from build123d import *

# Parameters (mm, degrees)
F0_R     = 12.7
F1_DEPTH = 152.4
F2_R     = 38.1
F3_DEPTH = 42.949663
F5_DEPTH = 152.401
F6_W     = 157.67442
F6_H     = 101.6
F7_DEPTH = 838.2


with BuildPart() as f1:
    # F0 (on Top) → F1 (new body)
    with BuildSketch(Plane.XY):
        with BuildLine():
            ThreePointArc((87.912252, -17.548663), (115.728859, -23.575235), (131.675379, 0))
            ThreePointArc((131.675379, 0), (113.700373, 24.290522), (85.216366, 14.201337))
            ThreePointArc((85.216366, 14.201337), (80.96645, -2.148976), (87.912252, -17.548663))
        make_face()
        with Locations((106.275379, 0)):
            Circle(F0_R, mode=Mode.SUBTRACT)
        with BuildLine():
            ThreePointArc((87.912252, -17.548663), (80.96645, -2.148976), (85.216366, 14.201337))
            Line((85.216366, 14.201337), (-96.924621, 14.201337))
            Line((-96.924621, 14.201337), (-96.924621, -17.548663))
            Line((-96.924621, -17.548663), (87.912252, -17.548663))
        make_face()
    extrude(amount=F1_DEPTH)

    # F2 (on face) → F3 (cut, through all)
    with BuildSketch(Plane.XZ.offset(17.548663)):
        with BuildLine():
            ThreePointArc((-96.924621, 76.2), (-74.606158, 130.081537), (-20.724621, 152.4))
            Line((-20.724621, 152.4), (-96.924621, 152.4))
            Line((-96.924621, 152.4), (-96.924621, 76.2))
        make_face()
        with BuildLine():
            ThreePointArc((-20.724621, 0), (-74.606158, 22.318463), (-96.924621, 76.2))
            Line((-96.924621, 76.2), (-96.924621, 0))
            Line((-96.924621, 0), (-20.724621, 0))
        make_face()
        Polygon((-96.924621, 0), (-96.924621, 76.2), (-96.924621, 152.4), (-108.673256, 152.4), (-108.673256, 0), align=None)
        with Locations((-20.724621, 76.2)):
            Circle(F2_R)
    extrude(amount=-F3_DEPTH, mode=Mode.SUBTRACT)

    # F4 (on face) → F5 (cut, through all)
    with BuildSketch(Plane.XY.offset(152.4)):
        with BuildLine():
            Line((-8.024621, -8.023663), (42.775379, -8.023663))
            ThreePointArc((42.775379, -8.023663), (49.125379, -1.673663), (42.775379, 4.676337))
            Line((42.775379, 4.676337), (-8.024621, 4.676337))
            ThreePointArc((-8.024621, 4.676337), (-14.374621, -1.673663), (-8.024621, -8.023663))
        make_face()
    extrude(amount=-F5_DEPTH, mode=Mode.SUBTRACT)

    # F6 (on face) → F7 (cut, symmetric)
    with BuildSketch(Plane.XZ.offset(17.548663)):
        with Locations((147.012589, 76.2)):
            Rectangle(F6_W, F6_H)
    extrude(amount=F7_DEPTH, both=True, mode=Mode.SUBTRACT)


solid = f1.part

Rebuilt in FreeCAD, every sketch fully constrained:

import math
import FreeCAD as App
import Part
import Sketcher

V = App.Vector
Q = App.Units.Quantity

doc = App.newDocument("Part")
body = doc.addObject("PartDesign::Body", "Body")

sketch1 = body.newObject("Sketcher::SketchObject", "Sketch")
sketch1.AttachmentSupport = (doc.getObject("XY_Plane"), [""])
sketch1.MapMode = "FlatFace"
sketch1.addGeometry([
    Part.ArcOfCircle(Part.Circle(V(106, 0, 0), V(0, 0, 1), 25), math.radians(-136), math.radians(0)),
    Part.ArcOfCircle(Part.Circle(V(106, 0, 0), V(0, 0, 1), 25), math.radians(0), math.radians(146)),
    Part.LineSegment(V(85, 14, 0), V(-97, 14, 0)),
    Part.LineSegment(V(-97, 14, 0), V(-97, -18, 0)),
    Part.LineSegment(V(-97, -18, 0), V(88, -18, 0)),
    Part.Circle(V(106, 0, 0), V(0, 0, 1), 13),
], False)
sketch1.addConstraint([
    Sketcher.Constraint("Tangent", 0, 2, 1, 1),
    Sketcher.Constraint("Coincident", 1, 2, 2, 1),
    Sketcher.Constraint("Coincident", 2, 2, 3, 1),
    Sketcher.Constraint("Coincident", 3, 2, 4, 1),
    Sketcher.Constraint("Coincident", 4, 2, 0, 1),
    Sketcher.Constraint("Horizontal", 2),
    Sketcher.Constraint("Vertical", 3),
    Sketcher.Constraint("Horizontal", 4),
    Sketcher.Constraint("Coincident", 5, 3, 0, 3),
    Sketcher.Constraint("Equal", 0, 1),
    Sketcher.Constraint("PointOnObject", 0, 3, -1),
    Sketcher.Constraint("PointOnObject", 0, 2, -1),
    Sketcher.Constraint("Diameter", 5, Q("1 in")),
    Sketcher.Constraint("Radius", 0, Q("1 in")),
    Sketcher.Constraint("DistanceX", 2, 2, 0, 3, Q("8 in")),
    Sketcher.Constraint("DistanceY", 3, 2, 3, 1, Q("1.25 in")),
    Sketcher.Constraint("DistanceX", 2, 2, 2, 1, Q("182.140987 mm")),
    Sketcher.Constraint("DistanceX", -1, 1, 0, 3, Q("106.275379 mm")),
])
pad1 = body.newObject("PartDesign::Pad", "Pad")
pad1.Profile = sketch1
pad1.Length = Q("6 in")

sketch2 = body.newObject("Sketcher::SketchObject", "Sketch001")
sketch2.AttachmentSupport = (doc.getObject("XZ_Plane"), [""])
sketch2.MapMode = "FlatFace"
sketch2.AttachmentOffset = App.Placement(V(0, 0, 17.548663), App.Rotation())
sketch2.addGeometry([
    Part.ArcOfCircle(Part.Circle(V(-21, 76, 0), V(0, 0, 1), 76), math.radians(90), math.radians(180)),
    Part.LineSegment(V(-21, 152, 0), V(-109, 152, 0)),
    Part.LineSegment(V(-109, 152, 0), V(-109, 0, 0)),
    Part.LineSegment(V(-109, 0, 0), V(-21, 0, 0)),
    Part.ArcOfCircle(Part.Circle(V(-21, 76, 0), V(0, 0, 1), 76), math.radians(180), math.radians(270)),
    Part.Circle(V(-21, 76, 0), V(0, 0, 1), 38),
], False)
sketch2.addConstraint([
    Sketcher.Constraint("Tangent", 0, 1, 1, 1),
    Sketcher.Constraint("Coincident", 1, 2, 2, 1),
    Sketcher.Constraint("Coincident", 2, 2, 3, 1),
    Sketcher.Constraint("Tangent", 3, 2, 4, 2),
    Sketcher.Constraint("Tangent", 4, 1, 0, 2),
    Sketcher.Constraint("Horizontal", 1),
    Sketcher.Constraint("Vertical", 2),
    Sketcher.Constraint("Horizontal", 3),
    Sketcher.Constraint("Coincident", 5, 3, 0, 3),
    Sketcher.Constraint("Equal", 0, 4),
    Sketcher.Constraint("PointOnObject", 2, 2, -1),
    Sketcher.Constraint("Horizontal", 5, 3, 4, 1),
    Sketcher.Constraint("Diameter", 5, Q("3 in")),
    Sketcher.Constraint("Radius", 0, Q("3 in")),
    Sketcher.Constraint("DistanceX", 1, 2, 1, 1, Q("87.948635 mm")),
    Sketcher.Constraint("DistanceX", 0, 3, -1, 1, Q("20.724622 mm")),
])
pocket1 = body.newObject("PartDesign::Pocket", "Pocket")
pocket1.Profile = sketch2
pocket1.Type = "ThroughAll"

sketch3 = body.newObject("Sketcher::SketchObject", "Sketch002")
sketch3.AttachmentSupport = (doc.getObject("XY_Plane"), [""])
sketch3.MapMode = "FlatFace"
sketch3.AttachmentOffset = App.Placement(V(0, 0, 6 * 25.4), App.Rotation())
sketch3.addGeometry([
    Part.LineSegment(V(-8, -8, 0), V(43, -8, 0)),
    Part.ArcOfCircle(Part.Circle(V(43, -2, 0), V(0, 0, 1), 6), math.radians(-90), math.radians(90)),
    Part.LineSegment(V(43, 5, 0), V(-8, 5, 0)),
    Part.ArcOfCircle(Part.Circle(V(-8, -2, 0), V(0, 0, 1), 6), math.radians(90), math.radians(270)),
], False)
sketch3.addConstraint([
    Sketcher.Constraint("Tangent", 0, 2, 1, 1),
    Sketcher.Constraint("Tangent", 1, 2, 2, 1),
    Sketcher.Constraint("Tangent", 2, 2, 3, 1),
    Sketcher.Constraint("Tangent", 3, 2, 0, 1),
    Sketcher.Constraint("Horizontal", 0),
    Sketcher.Constraint("Horizontal", 2),
    Sketcher.Constraint("DistanceX", 0, 1, 0, 2, Q("2 in")),
    Sketcher.Constraint("Radius", 1, Q("0.25 in")),
    Sketcher.Constraint("DistanceX", -1, 1, 1, 3, Q("42.775379 mm")),
    Sketcher.Constraint("DistanceY", 1, 3, -1, 1, Q("1.673663 mm")),
])
pocket2 = body.newObject("PartDesign::Pocket", "Pocket001")
pocket2.Profile = sketch3
pocket2.Type = "ThroughAll"

sketch4 = body.newObject("Sketcher::SketchObject", "Sketch003")
sketch4.AttachmentSupport = (doc.getObject("XZ_Plane"), [""])
sketch4.MapMode = "FlatFace"
sketch4.AttachmentOffset = App.Placement(V(0, 0, 17.548663), App.Rotation())
sketch4.addGeometry([
    Part.LineSegment(V(68, 127, 0), V(68, 25, 0)),
    Part.LineSegment(V(68, 25, 0), V(226, 25, 0)),
    Part.LineSegment(V(226, 25, 0), V(226, 127, 0)),
    Part.LineSegment(V(226, 127, 0), V(68, 127, 0)),
], False)
sketch4.addConstraint([
    Sketcher.Constraint("Coincident", 0, 2, 1, 1),
    Sketcher.Constraint("Coincident", 1, 2, 2, 1),
    Sketcher.Constraint("Coincident", 2, 2, 3, 1),
    Sketcher.Constraint("Coincident", 3, 2, 0, 1),
    Sketcher.Constraint("Vertical", 0),
    Sketcher.Constraint("Horizontal", 1),
    Sketcher.Constraint("Vertical", 2),
    Sketcher.Constraint("Horizontal", 3),
    Sketcher.Constraint("DistanceY", 0, 2, 0, 1, Q("4 in")),
    Sketcher.Constraint("DistanceY", -1, 1, 0, 2, Q("1 in")),
    Sketcher.Constraint("DistanceX", 1, 1, 1, 2, Q("157.67442 mm")),
    Sketcher.Constraint("DistanceX", -1, 1, 1, 2, Q("225.849799 mm")),
])
pocket3 = body.newObject("PartDesign::Pocket", "Pocket002")
pocket3.Profile = sketch4
pocket3.Length = Q("66 in")
pocket3.Midplane = True

doc.recompute()
